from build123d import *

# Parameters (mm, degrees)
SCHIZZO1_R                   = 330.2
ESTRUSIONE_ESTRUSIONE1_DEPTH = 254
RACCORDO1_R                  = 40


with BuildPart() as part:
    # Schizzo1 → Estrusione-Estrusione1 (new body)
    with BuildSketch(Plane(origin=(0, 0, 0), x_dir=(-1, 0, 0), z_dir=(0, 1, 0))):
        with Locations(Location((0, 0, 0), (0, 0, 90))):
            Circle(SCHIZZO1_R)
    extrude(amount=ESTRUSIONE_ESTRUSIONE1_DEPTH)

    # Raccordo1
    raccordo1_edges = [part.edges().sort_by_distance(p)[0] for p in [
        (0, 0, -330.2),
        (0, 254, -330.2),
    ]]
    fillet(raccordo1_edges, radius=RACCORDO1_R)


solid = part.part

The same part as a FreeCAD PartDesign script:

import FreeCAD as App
import Part
import Sketcher

V = App.Vector
Q = App.Units.Quantity


def edges_at(feature, points):
    """Names of the edges that pass closest to the given points."""
    edges = feature.Shape.Edges
    near = lambda p: min(range(len(edges)), key=lambda i: edges[i].distToShape(Part.Vertex(*p))[0])
    return sorted({f"Edge{near(p) + 1}" for p in points})

doc = App.newDocument("Part")
body = doc.addObject("PartDesign::Body", "Body")

sketch1 = body.newObject("Sketcher::SketchObject", "Sketch")
sketch1.AttachmentSupport = (doc.getObject("XZ_Plane"), [""])
sketch1.MapMode = "FlatFace"
sketch1.addGeometry(Part.Circle(V(0, 0, 0), V(0, 0, 1), 330), False)
sketch1.addConstraint(Sketcher.Constraint("Coincident", 0, 3, -1, 1))
sketch1.addConstraint(Sketcher.Constraint("Diameter", 0, Q("26 in")))
pad1 = body.newObject("PartDesign::Pad", "Pad")
pad1.Profile = sketch1
pad1.Length = Q("10 in")
pad1.Reversed = True
doc.recompute()

fillet = body.newObject("PartDesign::Fillet", "Fillet")
fillet.Base = (pad1, edges_at(pad1, [(0, 0, -330.2), (0, 254, -330.2)]))
fillet.Radius = 40

doc.recompute()
